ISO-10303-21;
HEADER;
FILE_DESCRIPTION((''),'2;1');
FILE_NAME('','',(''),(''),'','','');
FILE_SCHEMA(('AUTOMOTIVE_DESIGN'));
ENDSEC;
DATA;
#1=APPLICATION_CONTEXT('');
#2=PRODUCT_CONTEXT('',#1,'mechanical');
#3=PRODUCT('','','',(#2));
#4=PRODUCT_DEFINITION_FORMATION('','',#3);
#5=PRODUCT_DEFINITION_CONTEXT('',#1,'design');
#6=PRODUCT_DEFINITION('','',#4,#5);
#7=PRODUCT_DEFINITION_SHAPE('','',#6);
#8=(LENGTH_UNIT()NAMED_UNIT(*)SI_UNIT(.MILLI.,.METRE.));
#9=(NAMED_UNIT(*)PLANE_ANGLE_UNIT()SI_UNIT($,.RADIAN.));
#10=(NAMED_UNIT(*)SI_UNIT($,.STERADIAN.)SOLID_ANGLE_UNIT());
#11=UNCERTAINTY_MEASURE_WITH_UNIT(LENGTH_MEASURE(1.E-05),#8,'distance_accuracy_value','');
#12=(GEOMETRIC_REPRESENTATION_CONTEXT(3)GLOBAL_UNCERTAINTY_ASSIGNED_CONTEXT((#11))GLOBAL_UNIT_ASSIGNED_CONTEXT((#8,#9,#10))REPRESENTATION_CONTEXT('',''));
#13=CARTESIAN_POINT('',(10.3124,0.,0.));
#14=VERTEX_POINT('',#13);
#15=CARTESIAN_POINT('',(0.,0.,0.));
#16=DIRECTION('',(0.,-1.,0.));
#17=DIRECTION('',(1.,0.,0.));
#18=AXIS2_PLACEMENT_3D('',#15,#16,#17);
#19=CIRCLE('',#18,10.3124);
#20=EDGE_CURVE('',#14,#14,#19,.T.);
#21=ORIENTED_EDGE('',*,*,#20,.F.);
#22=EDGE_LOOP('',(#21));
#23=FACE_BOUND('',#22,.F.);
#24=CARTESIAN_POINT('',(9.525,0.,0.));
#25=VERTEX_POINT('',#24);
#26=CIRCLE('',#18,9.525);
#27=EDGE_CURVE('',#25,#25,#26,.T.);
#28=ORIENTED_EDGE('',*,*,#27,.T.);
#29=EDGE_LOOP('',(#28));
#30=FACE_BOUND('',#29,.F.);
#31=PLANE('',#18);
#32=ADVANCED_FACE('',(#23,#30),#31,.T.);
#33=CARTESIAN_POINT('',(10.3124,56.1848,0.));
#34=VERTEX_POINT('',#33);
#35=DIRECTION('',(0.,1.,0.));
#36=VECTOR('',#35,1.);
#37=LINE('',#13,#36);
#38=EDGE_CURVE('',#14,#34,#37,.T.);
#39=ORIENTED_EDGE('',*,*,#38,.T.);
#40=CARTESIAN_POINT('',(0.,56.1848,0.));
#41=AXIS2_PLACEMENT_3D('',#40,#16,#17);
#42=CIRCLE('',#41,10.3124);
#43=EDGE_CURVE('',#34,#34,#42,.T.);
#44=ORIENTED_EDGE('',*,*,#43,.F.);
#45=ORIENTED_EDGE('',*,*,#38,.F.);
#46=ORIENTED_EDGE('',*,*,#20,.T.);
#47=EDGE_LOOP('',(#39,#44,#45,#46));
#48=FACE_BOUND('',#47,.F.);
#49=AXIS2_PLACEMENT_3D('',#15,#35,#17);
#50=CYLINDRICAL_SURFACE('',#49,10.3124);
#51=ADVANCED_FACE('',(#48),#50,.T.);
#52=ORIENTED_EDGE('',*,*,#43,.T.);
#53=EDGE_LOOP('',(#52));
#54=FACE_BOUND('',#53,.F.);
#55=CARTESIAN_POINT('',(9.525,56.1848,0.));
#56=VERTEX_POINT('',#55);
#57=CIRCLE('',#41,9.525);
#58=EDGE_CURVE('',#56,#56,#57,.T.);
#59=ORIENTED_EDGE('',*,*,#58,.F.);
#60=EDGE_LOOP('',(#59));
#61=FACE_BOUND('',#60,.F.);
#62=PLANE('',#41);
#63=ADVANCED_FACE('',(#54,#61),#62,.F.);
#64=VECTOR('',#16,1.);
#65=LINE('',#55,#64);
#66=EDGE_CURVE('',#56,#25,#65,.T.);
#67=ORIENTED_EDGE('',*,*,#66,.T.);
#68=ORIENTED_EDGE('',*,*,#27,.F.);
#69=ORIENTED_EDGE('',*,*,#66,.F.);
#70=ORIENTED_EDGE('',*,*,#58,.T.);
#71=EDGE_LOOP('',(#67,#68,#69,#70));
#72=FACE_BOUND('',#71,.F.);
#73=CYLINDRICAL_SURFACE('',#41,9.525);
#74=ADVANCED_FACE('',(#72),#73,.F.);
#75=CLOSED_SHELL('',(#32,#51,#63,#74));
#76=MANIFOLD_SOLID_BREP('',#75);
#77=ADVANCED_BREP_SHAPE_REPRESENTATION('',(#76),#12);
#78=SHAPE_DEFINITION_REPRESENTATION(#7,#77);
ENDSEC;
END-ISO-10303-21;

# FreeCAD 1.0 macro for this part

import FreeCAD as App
import Part
import Sketcher
Q = App.Units.Quantity


def add_polygon(sketch, points):
    """Adds a closed chain of lines whose ends are joined by coincident constraints."""
    first, n = sketch.GeometryCount, len(points)
    for a, b in zip(points, points[1:] + points[:1]):
        sketch.addGeometry(Part.LineSegment(App.Vector(*a, 0), App.Vector(*b, 0)), False)
    for i in range(n):
        sketch.addConstraint(Sketcher.Constraint("Coincident", first + i, 2, first + (i + 1) % n, 1))

doc = App.newDocument("Part")
body = doc.addObject("PartDesign::Body", "Body")

# Sketch on XY plane
sketch1 = body.newObject("Sketcher::SketchObject", "Sketch")
sketch1.AttachmentSupport = (doc.getObject("XY_Plane"), [""])
sketch1.MapMode = "FlatFace"
add_polygon(sketch1, [(10.3, 56.2), (9.5, 56.2), (9.5, 0), (10.3, 0)])  # lines 0-3
sketch1.addConstraint(Sketcher.Constraint("Horizontal", 0))
sketch1.addConstraint(Sketcher.Constraint("Vertical", 1))
sketch1.addConstraint(Sketcher.Constraint("Horizontal", 2))
sketch1.addConstraint(Sketcher.Constraint("Vertical", 3))
sketch1.addConstraint(Sketcher.Constraint("PointOnObject", 1, 2, -1))
sketch1.addConstraint(Sketcher.Constraint("DistanceX", 0, 2, 0, 1, Q("0.031 in")))
sketch1.addConstraint(Sketcher.Constraint("DistanceY", 1, 2, 1, 1, Q("2.212 in")))
sketch1.addConstraint(Sketcher.Constraint("DistanceX", -1, 1, 0, 2, Q("0.375 in")))
revolution = body.newObject("PartDesign::Revolution", "Revolution")
revolution.Profile = sketch1
revolution.ReferenceAxis = (sketch1, ["V_Axis"])
revolution.Angle = 360

doc.recompute()
